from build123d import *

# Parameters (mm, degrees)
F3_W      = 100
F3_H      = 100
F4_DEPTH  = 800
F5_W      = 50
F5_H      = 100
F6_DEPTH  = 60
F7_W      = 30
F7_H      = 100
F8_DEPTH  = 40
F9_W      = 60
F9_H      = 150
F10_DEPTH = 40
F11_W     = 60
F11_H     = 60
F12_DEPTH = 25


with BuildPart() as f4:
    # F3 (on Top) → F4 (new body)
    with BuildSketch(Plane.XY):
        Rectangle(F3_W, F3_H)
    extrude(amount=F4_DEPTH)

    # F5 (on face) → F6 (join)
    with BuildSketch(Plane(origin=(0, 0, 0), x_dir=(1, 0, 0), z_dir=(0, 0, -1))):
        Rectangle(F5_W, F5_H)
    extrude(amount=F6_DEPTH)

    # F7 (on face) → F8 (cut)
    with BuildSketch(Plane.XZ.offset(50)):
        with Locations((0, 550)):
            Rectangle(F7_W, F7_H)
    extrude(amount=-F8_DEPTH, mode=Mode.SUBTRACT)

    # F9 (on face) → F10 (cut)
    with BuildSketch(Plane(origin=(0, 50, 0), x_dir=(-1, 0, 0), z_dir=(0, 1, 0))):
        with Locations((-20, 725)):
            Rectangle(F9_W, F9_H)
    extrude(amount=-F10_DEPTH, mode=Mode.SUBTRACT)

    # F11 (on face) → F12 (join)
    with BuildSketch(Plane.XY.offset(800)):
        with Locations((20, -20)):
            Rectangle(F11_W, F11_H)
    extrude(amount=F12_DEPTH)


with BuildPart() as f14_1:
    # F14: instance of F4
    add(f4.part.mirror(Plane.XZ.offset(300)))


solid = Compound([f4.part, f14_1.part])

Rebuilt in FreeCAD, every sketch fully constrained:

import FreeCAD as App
import Part
import Sketcher

V = App.Vector
Q = App.Units.Quantity

doc = App.newDocument("Part")
body = doc.addObject("PartDesign::Body", "Body")

# Sketch on XY plane
sketch1 = doc.addObject("Sketcher::SketchObject", "Sketch")
body.addObject(sketch1)
sketch1.AttachmentSupport = (doc.XY_Plane, [""])
sketch1.MapMode = "FlatFace"
sketch1.addGeometry([
    Part.LineSegment(V(-50, 50, 0), V(-50, -50, 0)),
    Part.LineSegment(V(-50, -50, 0), V(50, -50, 0)),
    Part.LineSegment(V(50, -50, 0), V(50, 50, 0)),
    Part.LineSegment(V(50, 50, 0), V(-50, 50, 0)),
], False)
sketch1.addConstraint([
    Sketcher.Constraint("Coincident", 0, 2, 1, 1),
    Sketcher.Constraint("Coincident", 1, 2, 2, 1),
    Sketcher.Constraint("Coincident", 2, 2, 3, 1),
    Sketcher.Constraint("Coincident", 3, 2, 0, 1),
    Sketcher.Constraint("Vertical", 0),
    Sketcher.Constraint("Horizontal", 1),
    Sketcher.Constraint("Vertical", 2),
    Sketcher.Constraint("Horizontal", 3),
    Sketcher.Constraint("Symmetric", 0, 2, 2, 2, -1, 1),
    Sketcher.Constraint("Equal", 3, 0),
    Sketcher.Constraint("DistanceX", 1, 1, 1, 2, Q("100 mm")),
])
pad1 = doc.addObject("PartDesign::Pad", "Pad")
body.addObject(pad1)
pad1.Profile = sketch1
pad1.Length = 800

# Sketch on XY plane
sketch2 = doc.addObject("Sketcher::SketchObject", "Sketch001")
body.addObject(sketch2)
sketch2.AttachmentSupport = (doc.XY_Plane, [""])
sketch2.MapMode = "FlatFace"
sketch2.addGeometry([
    Part.LineSegment(V(-25, -50, 0), V(-25, 50, 0)),
    Part.LineSegment(V(-25, 50, 0), V(25, 50, 0)),
    Part.LineSegment(V(25, 50, 0), V(25, -50, 0)),
    Part.LineSegment(V(25, -50, 0), V(-25, -50, 0)),
], False)
sketch2.addConstraint([
    Sketcher.Constraint("Coincident", 0, 2, 1, 1),
    Sketcher.Constraint("Coincident", 1, 2, 2, 1),
    Sketcher.Constraint("Coincident", 2, 2, 3, 1),
    Sketcher.Constraint("Coincident", 3, 2, 0, 1),
    Sketcher.Constraint("Vertical", 0),
    Sketcher.Constraint("Horizontal", 1),
    Sketcher.Constraint("Vertical", 2),
    Sketcher.Constraint("Horizontal", 3),
    Sketcher.Constraint("Symmetric", 0, 2, 2, 2, -1, 1),
    Sketcher.Constraint("DistanceX", 1, 1, 1, 2, Q("50 mm")),
    Sketcher.Constraint("DistanceY", 0, 1, 0, 2, Q("100 mm")),
])
pad2 = doc.addObject("PartDesign::Pad", "Pad001")
body.addObject(pad2)
pad2.Profile = sketch2
pad2.Length = 60
pad2.Reversed = True

# Sketch on XZ plane
sketch3 = doc.addObject("Sketcher::SketchObject", "Sketch002")
body.addObject(sketch3)
sketch3.AttachmentSupport = (doc.XZ_Plane, [""])
sketch3.MapMode = "FlatFace"
sketch3.AttachmentOffset = App.Placement(V(0, 0, 50), App.Rotation())
sketch3.addGeometry([
    Part.LineSegment(V(-15, 600, 0), V(-15, 500, 0)),
    Part.LineSegment(V(-15, 500, 0), V(15, 500, 0)),
    Part.LineSegment(V(15, 500, 0), V(15, 600, 0)),
    Part.LineSegment(V(15, 600, 0), V(-15, 600, 0)),
], False)
sketch3.addConstraint([
    Sketcher.Constraint("Coincident", 0, 2, 1, 1),
    Sketcher.Constraint("Coincident", 1, 2, 2, 1),
    Sketcher.Constraint("Coincident", 2, 2, 3, 1),
    Sketcher.Constraint("Coincident", 3, 2, 0, 1),
    Sketcher.Constraint("Vertical", 0),
    Sketcher.Constraint("Horizontal", 1),
    Sketcher.Constraint("Vertical", 2),
    Sketcher.Constraint("Horizontal", 3),
    Sketcher.Constraint("DistanceX", 1, 1, 1, 2, Q("30 mm")),
    Sketcher.Constraint("DistanceY", 0, 2, 0, 1, Q("100 mm")),
    Sketcher.Constraint("DistanceX", 0, 2, -1, 1, Q("15 mm")),
    Sketcher.Constraint("DistanceY", -1, 1, 0, 2, Q("500 mm")),
])
pocket1 = doc.addObject("PartDesign::Pocket", "Pocket")
body.addObject(pocket1)
pocket1.Profile = sketch3
pocket1.Length = 40

# Sketch on XZ plane
sketch4 = doc.addObject("Sketcher::SketchObject", "Sketch003")
body.addObject(sketch4)
sketch4.AttachmentSupport = (doc.XZ_Plane, [""])
sketch4.MapMode = "FlatFace"
sketch4.AttachmentOffset = App.Placement(V(0, 0, -50), App.Rotation())
sketch4.addGeometry([
    Part.LineSegment(V(50, 800, 0), V(50, 650, 0)),
    Part.LineSegment(V(50, 650, 0), V(-10, 650, 0)),
    Part.LineSegment(V(-10, 650, 0), V(-10, 800, 0)),
    Part.LineSegment(V(-10, 800, 0), V(50, 800, 0)),
], False)
sketch4.addConstraint([
    Sketcher.Constraint("Coincident", 0, 2, 1, 1),
    Sketcher.Constraint("Coincident", 1, 2, 2, 1),
    Sketcher.Constraint("Coincident", 2, 2, 3, 1),
    Sketcher.Constraint("Coincident", 3, 2, 0, 1),
    Sketcher.Constraint("Vertical", 0),
    Sketcher.Constraint("Horizontal", 1),
    Sketcher.Constraint("Vertical", 2),
    Sketcher.Constraint("Horizontal", 3),
    Sketcher.Constraint("DistanceX", 1, 2, 1, 1, Q("60 mm")),
    Sketcher.Constraint("DistanceY", 0, 2, 0, 1, Q("150 mm")),
    Sketcher.Constraint("DistanceX", -1, 1, 0, 2, Q("50 mm")),
    Sketcher.Constraint("DistanceY", -1, 1, 0, 2, Q("650 mm")),
])
pocket2 = doc.addObject("PartDesign::Pocket", "Pocket001")
body.addObject(pocket2)
pocket2.Profile = sketch4
pocket2.Length = 40
pocket2.Reversed = True

# Sketch on XY plane
sketch5 = doc.addObject("Sketcher::SketchObject", "Sketch004")
body.addObject(sketch5)
sketch5.AttachmentSupport = (doc.XY_Plane, [""])
sketch5.MapMode = "FlatFace"
sketch5.AttachmentOffset = App.Placement(V(0, 0, 800), App.Rotation())
sketch5.addGeometry([
    Part.LineSegment(V(-10, 10, 0), V(-10, -50, 0)),
    Part.LineSegment(V(-10, -50, 0), V(50, -50, 0)),
    Part.LineSegment(V(50, -50, 0), V(50, 10, 0)),
    Part.LineSegment(V(50, 10, 0), V(-10, 10, 0)),
], False)
sketch5.addConstraint([
    Sketcher.Constraint("Coincident", 0, 2, 1, 1),
    Sketcher.Constraint("Coincident", 1, 2, 2, 1),
    Sketcher.Constraint("Coincident", 2, 2, 3, 1),
    Sketcher.Constraint("Coincident", 3, 2, 0, 1),
    Sketcher.Constraint("Vertical", 0),
    Sketcher.Constraint("Horizontal", 1),
    Sketcher.Constraint("Vertical", 2),
    Sketcher.Constraint("Horizontal", 3),
    Sketcher.Constraint("Equal", 3, 0),
    Sketcher.Constraint("DistanceX", 1, 1, 1, 2, Q("60 mm")),
    Sketcher.Constraint("DistanceX", 0, 2, -1, 1, Q("10 mm")),
    Sketcher.Constraint("DistanceY", 0, 2, -1, 1, Q("50 mm")),
])
pad3 = doc.addObject("PartDesign::Pad", "Pad002")
body.addObject(pad3)
pad3.Profile = sketch5
pad3.Length = 25
body2 = doc.addObject("PartDesign::Body", "Body001")
doc.recompute()

mirroring = doc.addObject("Part::Mirroring", "Mirroring")
mirroring.Source = body
mirroring.Base = V(0, -300, 0)
mirroring.Normal = V(0, -1, 0)
body2.BaseFeature = mirroring
doc.recompute()
mirroring.Visibility = False

doc.recompute()
